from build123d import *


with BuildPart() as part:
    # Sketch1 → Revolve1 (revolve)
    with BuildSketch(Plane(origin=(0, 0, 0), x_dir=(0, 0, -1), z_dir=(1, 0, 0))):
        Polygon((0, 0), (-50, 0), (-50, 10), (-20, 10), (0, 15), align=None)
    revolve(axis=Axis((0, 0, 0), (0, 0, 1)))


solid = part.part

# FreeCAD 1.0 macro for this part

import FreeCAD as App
import Part
import Sketcher
from FreeCAD import Vector
Q = App.Units.Quantity


def add_polygon(sketch, points):
    """Adds a closed chain of lines whose ends are joined by coincident constraints."""
    first, n = sketch.GeometryCount, len(points)
    for a, b in zip(points, points[1:] + points[:1]):
        sketch.addGeometry(Part.LineSegment(App.Vector(*a, 0), App.Vector(*b, 0)), False)
    for i in range(n):
        sketch.addConstraint(Sketcher.Constraint("Coincident", first + i, 2, first + (i + 1) % n, 1))

doc = App.newDocument("Part")
body = doc.addObject("PartDesign::Body", "Body")

sketch1 = doc.addObject("Sketcher::SketchObject", "Sketch")
body.addObject(sketch1)
sketch1.AttachmentSupport = (doc.YZ_Plane, [""])
sketch1.MapMode = "FlatFace"
add_polygon(sketch1, [(0, 50), (0, 0), (15, 0), (10, 20), (10, 50)])
sketch1.addConstraint([
    Sketcher.Constraint("Vertical", 0),
    Sketcher.Constraint("Horizontal", 1),
    Sketcher.Constraint("Vertical", 3),
    Sketcher.Constraint("Horizontal", 4),
    Sketcher.Constraint("Coincident", 0, 2, -1, 1),
    Sketcher.Constraint("DistanceX", 1, 1, 1, 2, Q("15 mm")),
    Sketcher.Constraint("DistanceX", 4, 2, 4, 1, Q("10 mm")),
    Sketcher.Constraint("DistanceY", 0, 2, 0, 1, Q("50 mm")),
    Sketcher.Constraint("DistanceY", 3, 1, 3, 2, Q("30 mm")),
])
revolution = doc.addObject("PartDesign::Revolution", "Revolution")
body.addObject(revolution)
revolution.Profile = sketch1
revolution.ReferenceAxis = (sketch1, ["V_Axis"])
revolution.Angle = 360

doc.recompute()
